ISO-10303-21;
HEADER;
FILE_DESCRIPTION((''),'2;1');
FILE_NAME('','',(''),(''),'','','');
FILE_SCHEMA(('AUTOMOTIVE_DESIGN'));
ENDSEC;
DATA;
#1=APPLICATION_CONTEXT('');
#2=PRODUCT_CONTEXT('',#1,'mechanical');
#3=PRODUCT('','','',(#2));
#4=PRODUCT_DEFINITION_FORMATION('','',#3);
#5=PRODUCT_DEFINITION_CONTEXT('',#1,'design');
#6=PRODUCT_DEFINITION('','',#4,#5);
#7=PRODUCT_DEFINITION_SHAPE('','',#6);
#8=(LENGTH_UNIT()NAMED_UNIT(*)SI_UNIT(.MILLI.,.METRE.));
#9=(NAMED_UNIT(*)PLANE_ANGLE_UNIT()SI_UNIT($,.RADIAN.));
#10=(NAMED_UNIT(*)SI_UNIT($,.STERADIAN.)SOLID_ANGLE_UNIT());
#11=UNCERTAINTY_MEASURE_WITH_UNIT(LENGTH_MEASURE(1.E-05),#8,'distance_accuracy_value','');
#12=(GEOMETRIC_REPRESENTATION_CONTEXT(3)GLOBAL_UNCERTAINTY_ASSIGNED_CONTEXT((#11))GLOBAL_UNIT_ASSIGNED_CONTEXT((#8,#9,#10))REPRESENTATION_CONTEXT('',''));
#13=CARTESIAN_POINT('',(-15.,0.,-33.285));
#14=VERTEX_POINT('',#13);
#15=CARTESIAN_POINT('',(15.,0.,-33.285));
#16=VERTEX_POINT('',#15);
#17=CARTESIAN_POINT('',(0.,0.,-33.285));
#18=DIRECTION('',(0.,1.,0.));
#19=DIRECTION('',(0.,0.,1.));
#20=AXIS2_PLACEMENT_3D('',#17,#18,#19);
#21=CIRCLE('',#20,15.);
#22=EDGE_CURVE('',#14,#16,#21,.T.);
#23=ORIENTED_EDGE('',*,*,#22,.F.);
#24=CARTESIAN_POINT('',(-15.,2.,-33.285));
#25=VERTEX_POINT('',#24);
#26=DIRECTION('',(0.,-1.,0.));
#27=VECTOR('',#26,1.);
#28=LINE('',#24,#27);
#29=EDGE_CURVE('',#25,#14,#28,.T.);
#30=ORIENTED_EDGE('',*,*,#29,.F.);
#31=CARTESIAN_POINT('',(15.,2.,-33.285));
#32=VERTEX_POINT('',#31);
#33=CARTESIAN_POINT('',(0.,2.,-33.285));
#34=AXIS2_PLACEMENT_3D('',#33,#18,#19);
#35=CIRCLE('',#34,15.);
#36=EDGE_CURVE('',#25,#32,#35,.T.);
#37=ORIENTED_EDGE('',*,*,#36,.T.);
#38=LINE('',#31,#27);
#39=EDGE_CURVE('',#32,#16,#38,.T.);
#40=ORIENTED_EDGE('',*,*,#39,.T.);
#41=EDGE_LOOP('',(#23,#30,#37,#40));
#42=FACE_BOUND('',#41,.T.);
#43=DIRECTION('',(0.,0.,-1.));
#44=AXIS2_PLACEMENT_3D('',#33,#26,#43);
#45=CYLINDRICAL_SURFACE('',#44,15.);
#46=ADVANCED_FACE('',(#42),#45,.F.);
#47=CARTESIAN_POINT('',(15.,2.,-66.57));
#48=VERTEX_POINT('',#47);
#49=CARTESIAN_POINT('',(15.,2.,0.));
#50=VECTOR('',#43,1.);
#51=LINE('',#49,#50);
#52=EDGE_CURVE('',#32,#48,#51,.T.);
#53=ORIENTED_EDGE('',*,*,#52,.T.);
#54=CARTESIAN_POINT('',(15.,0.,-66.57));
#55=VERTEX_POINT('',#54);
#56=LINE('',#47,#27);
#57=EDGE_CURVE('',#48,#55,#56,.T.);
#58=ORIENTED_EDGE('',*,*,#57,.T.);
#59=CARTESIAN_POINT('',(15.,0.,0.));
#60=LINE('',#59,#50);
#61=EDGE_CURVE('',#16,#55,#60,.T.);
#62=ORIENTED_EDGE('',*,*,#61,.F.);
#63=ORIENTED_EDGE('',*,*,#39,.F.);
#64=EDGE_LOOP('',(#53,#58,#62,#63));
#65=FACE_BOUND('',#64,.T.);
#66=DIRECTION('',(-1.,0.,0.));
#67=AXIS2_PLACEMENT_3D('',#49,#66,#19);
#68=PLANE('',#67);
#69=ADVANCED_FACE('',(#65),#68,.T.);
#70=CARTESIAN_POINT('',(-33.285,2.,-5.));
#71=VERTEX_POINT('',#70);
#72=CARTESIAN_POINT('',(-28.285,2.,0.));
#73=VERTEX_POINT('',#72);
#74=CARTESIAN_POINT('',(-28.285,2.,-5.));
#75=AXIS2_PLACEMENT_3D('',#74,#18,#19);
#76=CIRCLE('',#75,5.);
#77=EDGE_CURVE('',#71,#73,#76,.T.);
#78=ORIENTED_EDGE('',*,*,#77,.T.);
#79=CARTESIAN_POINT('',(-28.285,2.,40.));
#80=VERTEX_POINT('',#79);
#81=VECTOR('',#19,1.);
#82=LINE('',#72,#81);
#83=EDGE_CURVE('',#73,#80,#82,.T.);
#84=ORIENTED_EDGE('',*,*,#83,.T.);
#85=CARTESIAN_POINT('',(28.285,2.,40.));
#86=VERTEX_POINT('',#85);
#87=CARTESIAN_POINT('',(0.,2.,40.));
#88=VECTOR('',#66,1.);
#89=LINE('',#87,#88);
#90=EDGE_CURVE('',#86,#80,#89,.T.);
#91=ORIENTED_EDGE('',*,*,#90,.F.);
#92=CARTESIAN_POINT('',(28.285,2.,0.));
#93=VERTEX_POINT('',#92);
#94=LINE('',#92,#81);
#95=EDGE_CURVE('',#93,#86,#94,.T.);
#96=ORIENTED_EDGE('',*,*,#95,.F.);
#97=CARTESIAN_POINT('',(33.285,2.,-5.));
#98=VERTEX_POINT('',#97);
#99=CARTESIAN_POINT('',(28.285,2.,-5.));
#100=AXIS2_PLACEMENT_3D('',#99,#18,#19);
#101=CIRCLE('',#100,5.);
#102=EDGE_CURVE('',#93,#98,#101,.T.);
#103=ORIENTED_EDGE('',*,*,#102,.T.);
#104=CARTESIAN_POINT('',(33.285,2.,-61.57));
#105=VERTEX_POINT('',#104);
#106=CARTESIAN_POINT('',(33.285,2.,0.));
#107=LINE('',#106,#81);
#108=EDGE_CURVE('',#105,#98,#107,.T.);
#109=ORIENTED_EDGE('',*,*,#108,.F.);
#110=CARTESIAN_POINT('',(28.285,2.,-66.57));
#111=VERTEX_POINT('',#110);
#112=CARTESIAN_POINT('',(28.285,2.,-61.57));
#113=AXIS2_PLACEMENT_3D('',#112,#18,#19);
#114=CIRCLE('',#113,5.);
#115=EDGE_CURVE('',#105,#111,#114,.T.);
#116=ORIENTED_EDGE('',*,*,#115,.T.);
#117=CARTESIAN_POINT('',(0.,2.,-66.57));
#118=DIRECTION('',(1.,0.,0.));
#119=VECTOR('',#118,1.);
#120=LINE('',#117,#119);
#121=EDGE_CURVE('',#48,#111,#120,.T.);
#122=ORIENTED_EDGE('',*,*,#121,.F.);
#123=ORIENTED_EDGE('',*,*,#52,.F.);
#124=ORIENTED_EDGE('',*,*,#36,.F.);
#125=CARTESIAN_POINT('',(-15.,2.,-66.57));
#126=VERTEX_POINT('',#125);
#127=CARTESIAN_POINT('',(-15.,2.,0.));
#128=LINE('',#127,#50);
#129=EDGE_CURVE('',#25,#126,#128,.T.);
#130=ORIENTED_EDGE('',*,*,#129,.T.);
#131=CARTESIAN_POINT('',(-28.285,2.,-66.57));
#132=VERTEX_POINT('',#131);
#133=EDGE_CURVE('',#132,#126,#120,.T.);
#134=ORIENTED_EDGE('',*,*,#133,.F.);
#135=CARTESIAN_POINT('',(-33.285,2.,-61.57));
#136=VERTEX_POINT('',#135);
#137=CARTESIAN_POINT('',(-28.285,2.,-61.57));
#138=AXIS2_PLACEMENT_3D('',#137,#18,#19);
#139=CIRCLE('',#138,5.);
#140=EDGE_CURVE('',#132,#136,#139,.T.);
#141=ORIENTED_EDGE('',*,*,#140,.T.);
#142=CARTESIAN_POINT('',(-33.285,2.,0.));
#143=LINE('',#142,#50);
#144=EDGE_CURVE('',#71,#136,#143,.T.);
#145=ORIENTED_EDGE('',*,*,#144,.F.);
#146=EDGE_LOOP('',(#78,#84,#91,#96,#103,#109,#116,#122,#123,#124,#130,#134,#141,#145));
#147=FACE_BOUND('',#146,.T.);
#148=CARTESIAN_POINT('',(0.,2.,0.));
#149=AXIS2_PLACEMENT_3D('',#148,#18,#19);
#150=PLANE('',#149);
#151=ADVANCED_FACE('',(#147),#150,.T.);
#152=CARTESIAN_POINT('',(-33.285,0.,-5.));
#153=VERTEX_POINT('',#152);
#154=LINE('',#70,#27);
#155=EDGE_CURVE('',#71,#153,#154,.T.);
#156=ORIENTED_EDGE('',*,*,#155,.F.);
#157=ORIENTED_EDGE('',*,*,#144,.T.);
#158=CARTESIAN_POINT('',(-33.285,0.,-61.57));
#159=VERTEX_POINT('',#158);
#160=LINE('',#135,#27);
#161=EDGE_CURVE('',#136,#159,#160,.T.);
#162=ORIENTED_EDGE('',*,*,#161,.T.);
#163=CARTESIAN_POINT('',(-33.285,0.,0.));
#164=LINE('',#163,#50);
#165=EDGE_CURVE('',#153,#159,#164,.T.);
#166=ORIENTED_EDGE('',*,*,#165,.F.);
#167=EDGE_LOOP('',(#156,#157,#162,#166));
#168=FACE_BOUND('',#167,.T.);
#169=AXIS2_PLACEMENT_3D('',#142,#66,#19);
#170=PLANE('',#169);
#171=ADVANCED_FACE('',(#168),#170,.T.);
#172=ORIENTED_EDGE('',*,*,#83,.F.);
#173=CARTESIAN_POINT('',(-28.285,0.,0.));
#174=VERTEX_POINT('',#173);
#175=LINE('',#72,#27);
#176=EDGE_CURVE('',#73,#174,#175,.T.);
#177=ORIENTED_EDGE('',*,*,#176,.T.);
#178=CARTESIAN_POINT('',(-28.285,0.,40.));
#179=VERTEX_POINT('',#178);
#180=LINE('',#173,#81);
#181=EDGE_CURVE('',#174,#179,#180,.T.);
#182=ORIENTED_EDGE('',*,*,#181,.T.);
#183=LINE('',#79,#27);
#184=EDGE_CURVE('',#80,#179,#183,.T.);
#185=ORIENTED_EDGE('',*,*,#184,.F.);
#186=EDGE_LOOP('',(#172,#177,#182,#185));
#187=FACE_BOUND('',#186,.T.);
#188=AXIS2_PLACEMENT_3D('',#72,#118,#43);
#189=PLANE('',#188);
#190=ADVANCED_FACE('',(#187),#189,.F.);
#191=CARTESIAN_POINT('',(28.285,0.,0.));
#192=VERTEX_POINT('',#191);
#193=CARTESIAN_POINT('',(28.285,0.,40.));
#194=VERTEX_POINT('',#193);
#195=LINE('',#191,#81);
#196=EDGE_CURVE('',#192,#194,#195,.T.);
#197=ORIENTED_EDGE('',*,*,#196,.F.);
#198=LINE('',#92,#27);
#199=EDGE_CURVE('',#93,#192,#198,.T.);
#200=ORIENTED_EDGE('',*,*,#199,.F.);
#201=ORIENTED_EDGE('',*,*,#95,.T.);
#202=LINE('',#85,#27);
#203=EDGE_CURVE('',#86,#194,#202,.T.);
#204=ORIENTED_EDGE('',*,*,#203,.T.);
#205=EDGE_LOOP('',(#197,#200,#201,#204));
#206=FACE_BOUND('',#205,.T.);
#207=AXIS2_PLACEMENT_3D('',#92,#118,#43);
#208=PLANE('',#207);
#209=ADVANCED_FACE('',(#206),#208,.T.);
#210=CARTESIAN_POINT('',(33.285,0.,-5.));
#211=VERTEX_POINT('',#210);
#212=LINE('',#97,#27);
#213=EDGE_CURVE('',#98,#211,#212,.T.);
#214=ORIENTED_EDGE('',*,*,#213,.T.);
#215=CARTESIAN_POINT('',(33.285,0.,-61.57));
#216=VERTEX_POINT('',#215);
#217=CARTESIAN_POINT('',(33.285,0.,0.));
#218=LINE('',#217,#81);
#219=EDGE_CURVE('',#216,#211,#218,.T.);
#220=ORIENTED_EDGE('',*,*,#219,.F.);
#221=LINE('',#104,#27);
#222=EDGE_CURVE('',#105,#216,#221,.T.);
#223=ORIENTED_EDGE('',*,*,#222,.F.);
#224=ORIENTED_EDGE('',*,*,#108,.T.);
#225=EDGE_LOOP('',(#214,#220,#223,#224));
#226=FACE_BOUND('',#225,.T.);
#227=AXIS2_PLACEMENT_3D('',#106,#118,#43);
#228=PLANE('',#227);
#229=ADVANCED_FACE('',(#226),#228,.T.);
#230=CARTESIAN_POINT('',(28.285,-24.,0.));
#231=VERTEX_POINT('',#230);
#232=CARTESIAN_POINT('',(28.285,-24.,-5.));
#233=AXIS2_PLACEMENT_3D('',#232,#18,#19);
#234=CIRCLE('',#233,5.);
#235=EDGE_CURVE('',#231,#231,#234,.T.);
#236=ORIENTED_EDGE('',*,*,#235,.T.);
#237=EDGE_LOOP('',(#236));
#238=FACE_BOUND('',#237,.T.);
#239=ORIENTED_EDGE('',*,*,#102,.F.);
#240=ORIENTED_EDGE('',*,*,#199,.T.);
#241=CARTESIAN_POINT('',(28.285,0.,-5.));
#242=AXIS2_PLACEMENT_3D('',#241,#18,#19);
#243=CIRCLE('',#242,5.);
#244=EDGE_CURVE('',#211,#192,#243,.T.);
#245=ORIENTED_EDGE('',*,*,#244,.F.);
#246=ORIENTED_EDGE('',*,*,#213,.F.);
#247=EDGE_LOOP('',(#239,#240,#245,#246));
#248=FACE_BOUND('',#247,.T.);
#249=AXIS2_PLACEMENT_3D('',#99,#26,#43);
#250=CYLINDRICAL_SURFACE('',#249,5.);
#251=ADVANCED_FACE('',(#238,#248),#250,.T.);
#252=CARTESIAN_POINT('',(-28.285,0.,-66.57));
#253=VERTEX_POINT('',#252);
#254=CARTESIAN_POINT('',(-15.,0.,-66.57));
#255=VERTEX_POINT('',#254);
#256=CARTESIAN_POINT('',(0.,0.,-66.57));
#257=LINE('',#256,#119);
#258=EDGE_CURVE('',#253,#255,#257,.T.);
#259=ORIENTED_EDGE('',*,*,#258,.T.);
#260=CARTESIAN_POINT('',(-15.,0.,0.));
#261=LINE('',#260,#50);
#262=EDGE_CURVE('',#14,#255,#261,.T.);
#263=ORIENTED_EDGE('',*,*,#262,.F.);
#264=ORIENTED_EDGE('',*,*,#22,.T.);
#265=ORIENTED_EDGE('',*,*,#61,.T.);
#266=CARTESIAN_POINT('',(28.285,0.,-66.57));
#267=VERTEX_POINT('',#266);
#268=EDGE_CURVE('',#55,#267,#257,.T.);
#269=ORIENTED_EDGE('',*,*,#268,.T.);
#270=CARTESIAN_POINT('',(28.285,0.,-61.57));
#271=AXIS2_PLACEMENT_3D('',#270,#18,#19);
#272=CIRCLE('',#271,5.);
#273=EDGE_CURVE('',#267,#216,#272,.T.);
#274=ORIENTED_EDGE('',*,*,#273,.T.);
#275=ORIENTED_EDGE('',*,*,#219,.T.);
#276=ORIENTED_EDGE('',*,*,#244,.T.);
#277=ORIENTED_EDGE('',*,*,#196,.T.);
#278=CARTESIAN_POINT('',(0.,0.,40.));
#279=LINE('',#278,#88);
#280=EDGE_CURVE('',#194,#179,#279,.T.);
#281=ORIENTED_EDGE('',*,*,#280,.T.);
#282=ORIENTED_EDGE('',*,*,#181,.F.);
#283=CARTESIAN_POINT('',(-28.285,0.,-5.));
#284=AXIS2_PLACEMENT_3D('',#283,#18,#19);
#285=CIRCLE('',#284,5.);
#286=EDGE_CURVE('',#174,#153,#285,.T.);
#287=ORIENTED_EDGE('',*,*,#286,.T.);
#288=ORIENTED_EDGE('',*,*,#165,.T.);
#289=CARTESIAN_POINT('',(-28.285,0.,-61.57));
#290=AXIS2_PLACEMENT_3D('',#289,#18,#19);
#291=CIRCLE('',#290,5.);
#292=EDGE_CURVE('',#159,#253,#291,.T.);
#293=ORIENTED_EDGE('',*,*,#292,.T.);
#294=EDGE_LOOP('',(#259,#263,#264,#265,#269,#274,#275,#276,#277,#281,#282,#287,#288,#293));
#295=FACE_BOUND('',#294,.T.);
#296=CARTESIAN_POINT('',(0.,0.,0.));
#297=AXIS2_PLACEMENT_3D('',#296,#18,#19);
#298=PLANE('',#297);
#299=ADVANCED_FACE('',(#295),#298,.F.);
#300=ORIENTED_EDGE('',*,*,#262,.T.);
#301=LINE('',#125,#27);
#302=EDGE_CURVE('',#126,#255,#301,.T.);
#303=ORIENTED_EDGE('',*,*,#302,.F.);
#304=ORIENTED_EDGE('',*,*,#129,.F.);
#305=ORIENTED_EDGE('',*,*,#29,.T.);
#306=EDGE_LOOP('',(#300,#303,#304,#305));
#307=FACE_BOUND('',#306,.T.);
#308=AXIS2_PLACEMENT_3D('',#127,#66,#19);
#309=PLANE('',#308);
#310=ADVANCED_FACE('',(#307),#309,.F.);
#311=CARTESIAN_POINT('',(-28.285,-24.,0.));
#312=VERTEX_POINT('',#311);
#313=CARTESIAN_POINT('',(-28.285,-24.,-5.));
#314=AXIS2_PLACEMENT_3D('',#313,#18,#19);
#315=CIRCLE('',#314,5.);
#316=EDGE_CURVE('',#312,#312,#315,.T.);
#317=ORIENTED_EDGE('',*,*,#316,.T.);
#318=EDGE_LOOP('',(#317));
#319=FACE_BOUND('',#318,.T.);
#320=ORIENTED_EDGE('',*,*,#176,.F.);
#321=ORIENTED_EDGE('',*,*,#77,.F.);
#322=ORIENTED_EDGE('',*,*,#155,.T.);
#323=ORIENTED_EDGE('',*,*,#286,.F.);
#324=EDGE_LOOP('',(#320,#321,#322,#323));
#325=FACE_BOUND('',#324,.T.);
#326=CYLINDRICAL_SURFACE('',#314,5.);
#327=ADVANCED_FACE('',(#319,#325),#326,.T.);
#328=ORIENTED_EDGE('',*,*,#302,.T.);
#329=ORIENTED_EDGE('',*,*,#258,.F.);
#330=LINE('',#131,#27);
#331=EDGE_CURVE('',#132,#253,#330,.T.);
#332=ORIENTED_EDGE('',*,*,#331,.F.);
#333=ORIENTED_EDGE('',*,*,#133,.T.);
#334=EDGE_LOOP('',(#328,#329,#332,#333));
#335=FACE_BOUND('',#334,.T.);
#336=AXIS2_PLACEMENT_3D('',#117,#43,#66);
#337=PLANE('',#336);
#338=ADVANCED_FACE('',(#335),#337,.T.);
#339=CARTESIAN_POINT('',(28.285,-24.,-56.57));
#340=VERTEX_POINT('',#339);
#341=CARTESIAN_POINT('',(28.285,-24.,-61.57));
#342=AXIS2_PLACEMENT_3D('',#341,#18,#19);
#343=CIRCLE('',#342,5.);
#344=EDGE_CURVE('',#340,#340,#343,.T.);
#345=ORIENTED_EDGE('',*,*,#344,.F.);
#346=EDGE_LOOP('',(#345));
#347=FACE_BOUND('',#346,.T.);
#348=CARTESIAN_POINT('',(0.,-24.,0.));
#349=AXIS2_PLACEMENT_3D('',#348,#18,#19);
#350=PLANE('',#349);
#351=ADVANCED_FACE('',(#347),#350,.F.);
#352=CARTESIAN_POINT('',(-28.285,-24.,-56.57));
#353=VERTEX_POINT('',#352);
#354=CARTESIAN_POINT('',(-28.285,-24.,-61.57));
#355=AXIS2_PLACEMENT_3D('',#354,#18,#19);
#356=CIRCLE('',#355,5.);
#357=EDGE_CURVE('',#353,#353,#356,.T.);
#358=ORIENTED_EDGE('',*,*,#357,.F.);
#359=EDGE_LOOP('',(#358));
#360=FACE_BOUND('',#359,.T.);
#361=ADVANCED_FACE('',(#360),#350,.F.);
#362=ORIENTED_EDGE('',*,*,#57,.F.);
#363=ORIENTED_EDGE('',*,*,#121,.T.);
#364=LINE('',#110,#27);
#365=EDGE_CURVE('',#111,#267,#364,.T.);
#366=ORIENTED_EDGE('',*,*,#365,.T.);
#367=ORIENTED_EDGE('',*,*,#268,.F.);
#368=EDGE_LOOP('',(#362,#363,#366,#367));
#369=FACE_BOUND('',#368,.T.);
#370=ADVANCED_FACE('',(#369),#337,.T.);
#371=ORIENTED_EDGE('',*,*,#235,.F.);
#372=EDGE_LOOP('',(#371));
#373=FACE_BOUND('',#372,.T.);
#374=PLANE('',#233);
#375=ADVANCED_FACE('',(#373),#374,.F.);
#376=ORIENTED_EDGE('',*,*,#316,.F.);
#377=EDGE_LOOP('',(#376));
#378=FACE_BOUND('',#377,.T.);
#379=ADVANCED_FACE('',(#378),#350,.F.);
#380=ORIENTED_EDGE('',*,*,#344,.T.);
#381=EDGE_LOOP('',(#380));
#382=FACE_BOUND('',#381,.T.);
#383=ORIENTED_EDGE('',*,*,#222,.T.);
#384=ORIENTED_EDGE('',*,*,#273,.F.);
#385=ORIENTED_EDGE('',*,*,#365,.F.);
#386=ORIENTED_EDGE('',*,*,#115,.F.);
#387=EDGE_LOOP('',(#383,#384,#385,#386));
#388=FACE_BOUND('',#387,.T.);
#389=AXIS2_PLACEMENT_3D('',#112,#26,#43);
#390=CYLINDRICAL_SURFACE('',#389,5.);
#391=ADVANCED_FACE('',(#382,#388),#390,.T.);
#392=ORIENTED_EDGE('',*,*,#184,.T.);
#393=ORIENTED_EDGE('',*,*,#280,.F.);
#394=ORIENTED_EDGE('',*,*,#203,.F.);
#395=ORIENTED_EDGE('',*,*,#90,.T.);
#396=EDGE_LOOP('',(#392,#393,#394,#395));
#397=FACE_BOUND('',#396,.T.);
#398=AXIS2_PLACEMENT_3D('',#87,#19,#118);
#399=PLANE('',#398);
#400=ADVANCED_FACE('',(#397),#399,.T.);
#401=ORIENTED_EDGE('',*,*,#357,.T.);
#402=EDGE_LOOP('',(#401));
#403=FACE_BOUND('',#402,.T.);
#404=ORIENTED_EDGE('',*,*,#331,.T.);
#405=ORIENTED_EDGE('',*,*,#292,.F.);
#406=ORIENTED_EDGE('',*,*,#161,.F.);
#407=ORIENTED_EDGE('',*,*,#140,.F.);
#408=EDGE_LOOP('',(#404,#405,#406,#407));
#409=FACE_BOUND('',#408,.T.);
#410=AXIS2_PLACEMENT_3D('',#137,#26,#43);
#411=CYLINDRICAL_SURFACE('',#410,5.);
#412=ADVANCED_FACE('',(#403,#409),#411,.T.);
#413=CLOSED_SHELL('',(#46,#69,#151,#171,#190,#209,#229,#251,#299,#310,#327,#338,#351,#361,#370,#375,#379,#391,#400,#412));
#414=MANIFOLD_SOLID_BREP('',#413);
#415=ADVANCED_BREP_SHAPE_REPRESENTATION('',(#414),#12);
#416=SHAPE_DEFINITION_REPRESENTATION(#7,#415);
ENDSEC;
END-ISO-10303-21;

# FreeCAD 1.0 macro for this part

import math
import FreeCAD as App
import Part
import Sketcher

V = App.Vector

doc = App.newDocument("Part")
body = doc.addObject("PartDesign::Body", "Body")

sketch1 = body.newObject("Sketcher::SketchObject", "Sketch")
sketch1.AttachmentSupport = (doc.getObject("XZ_Plane"), [""])
sketch1.MapMode = "FlatFace"
sketch1.addGeometry(Part.Circle(V(-28, -5, 0), V(0, 0, 1), 5), False)
sketch1.addConstraint(Sketcher.Constraint("Diameter", 0, 10.0))
sketch1.addConstraint(Sketcher.Constraint("DistanceY", 0, 3, -1, 1, 5.0))
sketch1.addConstraint(Sketcher.Constraint("DistanceX", 0, 3, -1, 1, 28.285))
pad1 = body.newObject("PartDesign::Pad", "Pad")
pad1.Profile = sketch1
pad1.Length = 24
body2 = doc.addObject("PartDesign::Body", "Body001")

sketch2 = body2.newObject("Sketcher::SketchObject", "Sketch001")
sketch2.AttachmentSupport = (doc.getObject("XZ_Plane001"), [""])
sketch2.MapMode = "FlatFace"
sketch2.addGeometry(Part.Circle(V(-28, -62, 0), V(0, 0, 1), 5), False)
sketch2.addConstraint(Sketcher.Constraint("Diameter", 0, 10.0))
sketch2.addConstraint(Sketcher.Constraint("DistanceY", 0, 3, -1, 1, 61.57))
sketch2.addConstraint(Sketcher.Constraint("DistanceX", 0, 3, -1, 1, 28.285))
pad2 = body2.newObject("PartDesign::Pad", "Pad001")
pad2.Profile = sketch2
pad2.Length = 24
body3 = doc.addObject("PartDesign::Body", "Body002")

sketch3 = body3.newObject("Sketcher::SketchObject", "Sketch002")
sketch3.AttachmentSupport = (doc.getObject("XZ_Plane002"), [""])
sketch3.MapMode = "FlatFace"
sketch3.addGeometry(Part.Circle(V(28, -62, 0), V(0, 0, 1), 5), False)
sketch3.addConstraint(Sketcher.Constraint("Diameter", 0, 10.0))
sketch3.addConstraint(Sketcher.Constraint("DistanceY", 0, 3, -1, 1, 61.57))
sketch3.addConstraint(Sketcher.Constraint("DistanceX", -1, 1, 0, 3, 28.285))
pad3 = body3.newObject("PartDesign::Pad", "Pad002")
pad3.Profile = sketch3
pad3.Length = 24
body4 = doc.addObject("PartDesign::Body", "Body003")

sketch4 = body4.newObject("Sketcher::SketchObject", "Sketch003")
sketch4.AttachmentSupport = (doc.getObject("XZ_Plane003"), [""])
sketch4.MapMode = "FlatFace"
sketch4.addGeometry(Part.Circle(V(28, -5, 0), V(0, 0, 1), 5), False)
sketch4.addConstraint(Sketcher.Constraint("Diameter", 0, 10.0))
sketch4.addConstraint(Sketcher.Constraint("DistanceY", 0, 3, -1, 1, 5.0))
sketch4.addConstraint(Sketcher.Constraint("DistanceX", -1, 1, 0, 3, 28.285))
pad4 = body4.newObject("PartDesign::Pad", "Pad003")
pad4.Profile = sketch4
pad4.Length = 24
body.AllowCompound = True
doc.recompute()

boolean = body.newObject("PartDesign::Boolean", "Boolean")
boolean.Type = "Fuse"
boolean.addObjects([body2])
doc.recompute()

boolean2 = body.newObject("PartDesign::Boolean", "Boolean001")
boolean2.Type = "Fuse"
boolean2.addObjects([body3])
doc.recompute()

boolean3 = body.newObject("PartDesign::Boolean", "Boolean002")
boolean3.Type = "Fuse"
boolean3.addObjects([body4])

sketch5 = body.newObject("Sketcher::SketchObject", "Sketch004")
sketch5.AttachmentSupport = (doc.getObject("XZ_Plane"), [""])
sketch5.MapMode = "FlatFace"
sketch5.AttachmentOffset = App.Placement(V(0, 0, -2), App.Rotation())
sketch5.addGeometry(Part.ArcOfCircle(Part.Circle(V(0, -33, 0), V(0, 0, 1), 15), math.radians(0), math.radians(180)), False)
sketch5.addGeometry(Part.LineSegment(V(-15, -33, 0), V(-15, -67, 0)), False)
sketch5.addGeometry(Part.LineSegment(V(-15, -67, 0), V(-28, -67, 0)), False)
sketch5.addGeometry(Part.ArcOfCircle(Part.Circle(V(-28, -62, 0), V(0, 0, 1), 5), math.radians(180), math.radians(270)), False)
sketch5.addGeometry(Part.LineSegment(V(-33, -62, 0), V(-33, -5, 0)), False)
sketch5.addGeometry(Part.ArcOfCircle(Part.Circle(V(-28, -5, 0), V(0, 0, 1), 5), math.radians(90), math.radians(180)), False)
sketch5.addGeometry(Part.LineSegment(V(-28, 0, 0), V(-28, 40, 0)), False)
sketch5.addGeometry(Part.LineSegment(V(-28, 40, 0), V(28, 40, 0)), False)
sketch5.addGeometry(Part.LineSegment(V(28, 40, 0), V(28, 0, 0)), False)
sketch5.addGeometry(Part.ArcOfCircle(Part.Circle(V(28, -5, 0), V(0, 0, 1), 5), math.radians(0), math.radians(90)), False)
sketch5.addGeometry(Part.LineSegment(V(33, -5, 0), V(33, -62, 0)), False)
sketch5.addGeometry(Part.ArcOfCircle(Part.Circle(V(28, -62, 0), V(0, 0, 1), 5), math.radians(-90), math.radians(0)), False)
sketch5.addGeometry(Part.LineSegment(V(28, -67, 0), V(15, -67, 0)), False)
sketch5.addGeometry(Part.LineSegment(V(15, -67, 0), V(15, -33, 0)), False)
sketch5.addConstraint(Sketcher.Constraint("Tangent", 0, 2, 1, 1))
sketch5.addConstraint(Sketcher.Constraint("Coincident", 1, 2, 2, 1))
sketch5.addConstraint(Sketcher.Constraint("Tangent", 2, 2, 3, 2))
sketch5.addConstraint(Sketcher.Constraint("Tangent", 3, 1, 4, 1))
sketch5.addConstraint(Sketcher.Constraint("Tangent", 4, 2, 5, 2))
sketch5.addConstraint(Sketcher.Constraint("Coincident", 5, 1, 6, 1))
sketch5.addConstraint(Sketcher.Constraint("Coincident", 6, 2, 7, 1))
sketch5.addConstraint(Sketcher.Constraint("Coincident", 7, 2, 8, 1))
sketch5.addConstraint(Sketcher.Constraint("Coincident", 8, 2, 9, 2))
sketch5.addConstraint(Sketcher.Constraint("Tangent", 9, 1, 10, 1))
sketch5.addConstraint(Sketcher.Constraint("Tangent", 10, 2, 11, 2))
sketch5.addConstraint(Sketcher.Constraint("Tangent", 11, 1, 12, 1))
sketch5.addConstraint(Sketcher.Constraint("Coincident", 12, 2, 13, 1))
sketch5.addConstraint(Sketcher.Constraint("Tangent", 13, 2, 0, 1))
sketch5.addConstraint(Sketcher.Constraint("Vertical", 1))
sketch5.addConstraint(Sketcher.Constraint("Horizontal", 2))
sketch5.addConstraint(Sketcher.Constraint("Vertical", 4))
sketch5.addConstraint(Sketcher.Constraint("Vertical", 6))
sketch5.addConstraint(Sketcher.Constraint("Horizontal", 7))
sketch5.addConstraint(Sketcher.Constraint("Vertical", 8))
sketch5.addConstraint(Sketcher.Constraint("Vertical", 10))
sketch5.addConstraint(Sketcher.Constraint("Horizontal", 12))
sketch5.addConstraint(Sketcher.Constraint("Vertical", 13))
sketch5.addConstraint(Sketcher.Constraint("Equal", 3, 5))
sketch5.addConstraint(Sketcher.Constraint("Equal", 5, 9))
sketch5.addConstraint(Sketcher.Constraint("Equal", 9, 11))
sketch5.addConstraint(Sketcher.Constraint("Symmetric", 5, 1, 8, 2, -1, 1))
sketch5.addConstraint(Sketcher.Constraint("Symmetric", 5, 3, 9, 3, -2))
sketch5.addConstraint(Sketcher.Constraint("Symmetric", 1, 2, 12, 2, -2))
sketch5.addConstraint(Sketcher.Constraint("Vertical", 2, 2, 5, 1))
sketch5.addConstraint(Sketcher.Constraint("Equal", 7, 4))
sketch5.addConstraint(Sketcher.Constraint("Radius", 0, 15.0))
sketch5.addConstraint(Sketcher.Constraint("Radius", 3, 5.0))
sketch5.addConstraint(Sketcher.Constraint("DistanceY", 6, 1, 6, 2, 40.0))
sketch5.addConstraint(Sketcher.Constraint("DistanceX", 7, 1, 7, 2, 56.57))
sketch5.addConstraint(Sketcher.Constraint("DistanceY", 1, 2, 1, 1, 33.285))
pad5 = body.newObject("PartDesign::Pad", "Pad004")
pad5.Profile = sketch5
pad5.Length = 2

doc.recompute()
